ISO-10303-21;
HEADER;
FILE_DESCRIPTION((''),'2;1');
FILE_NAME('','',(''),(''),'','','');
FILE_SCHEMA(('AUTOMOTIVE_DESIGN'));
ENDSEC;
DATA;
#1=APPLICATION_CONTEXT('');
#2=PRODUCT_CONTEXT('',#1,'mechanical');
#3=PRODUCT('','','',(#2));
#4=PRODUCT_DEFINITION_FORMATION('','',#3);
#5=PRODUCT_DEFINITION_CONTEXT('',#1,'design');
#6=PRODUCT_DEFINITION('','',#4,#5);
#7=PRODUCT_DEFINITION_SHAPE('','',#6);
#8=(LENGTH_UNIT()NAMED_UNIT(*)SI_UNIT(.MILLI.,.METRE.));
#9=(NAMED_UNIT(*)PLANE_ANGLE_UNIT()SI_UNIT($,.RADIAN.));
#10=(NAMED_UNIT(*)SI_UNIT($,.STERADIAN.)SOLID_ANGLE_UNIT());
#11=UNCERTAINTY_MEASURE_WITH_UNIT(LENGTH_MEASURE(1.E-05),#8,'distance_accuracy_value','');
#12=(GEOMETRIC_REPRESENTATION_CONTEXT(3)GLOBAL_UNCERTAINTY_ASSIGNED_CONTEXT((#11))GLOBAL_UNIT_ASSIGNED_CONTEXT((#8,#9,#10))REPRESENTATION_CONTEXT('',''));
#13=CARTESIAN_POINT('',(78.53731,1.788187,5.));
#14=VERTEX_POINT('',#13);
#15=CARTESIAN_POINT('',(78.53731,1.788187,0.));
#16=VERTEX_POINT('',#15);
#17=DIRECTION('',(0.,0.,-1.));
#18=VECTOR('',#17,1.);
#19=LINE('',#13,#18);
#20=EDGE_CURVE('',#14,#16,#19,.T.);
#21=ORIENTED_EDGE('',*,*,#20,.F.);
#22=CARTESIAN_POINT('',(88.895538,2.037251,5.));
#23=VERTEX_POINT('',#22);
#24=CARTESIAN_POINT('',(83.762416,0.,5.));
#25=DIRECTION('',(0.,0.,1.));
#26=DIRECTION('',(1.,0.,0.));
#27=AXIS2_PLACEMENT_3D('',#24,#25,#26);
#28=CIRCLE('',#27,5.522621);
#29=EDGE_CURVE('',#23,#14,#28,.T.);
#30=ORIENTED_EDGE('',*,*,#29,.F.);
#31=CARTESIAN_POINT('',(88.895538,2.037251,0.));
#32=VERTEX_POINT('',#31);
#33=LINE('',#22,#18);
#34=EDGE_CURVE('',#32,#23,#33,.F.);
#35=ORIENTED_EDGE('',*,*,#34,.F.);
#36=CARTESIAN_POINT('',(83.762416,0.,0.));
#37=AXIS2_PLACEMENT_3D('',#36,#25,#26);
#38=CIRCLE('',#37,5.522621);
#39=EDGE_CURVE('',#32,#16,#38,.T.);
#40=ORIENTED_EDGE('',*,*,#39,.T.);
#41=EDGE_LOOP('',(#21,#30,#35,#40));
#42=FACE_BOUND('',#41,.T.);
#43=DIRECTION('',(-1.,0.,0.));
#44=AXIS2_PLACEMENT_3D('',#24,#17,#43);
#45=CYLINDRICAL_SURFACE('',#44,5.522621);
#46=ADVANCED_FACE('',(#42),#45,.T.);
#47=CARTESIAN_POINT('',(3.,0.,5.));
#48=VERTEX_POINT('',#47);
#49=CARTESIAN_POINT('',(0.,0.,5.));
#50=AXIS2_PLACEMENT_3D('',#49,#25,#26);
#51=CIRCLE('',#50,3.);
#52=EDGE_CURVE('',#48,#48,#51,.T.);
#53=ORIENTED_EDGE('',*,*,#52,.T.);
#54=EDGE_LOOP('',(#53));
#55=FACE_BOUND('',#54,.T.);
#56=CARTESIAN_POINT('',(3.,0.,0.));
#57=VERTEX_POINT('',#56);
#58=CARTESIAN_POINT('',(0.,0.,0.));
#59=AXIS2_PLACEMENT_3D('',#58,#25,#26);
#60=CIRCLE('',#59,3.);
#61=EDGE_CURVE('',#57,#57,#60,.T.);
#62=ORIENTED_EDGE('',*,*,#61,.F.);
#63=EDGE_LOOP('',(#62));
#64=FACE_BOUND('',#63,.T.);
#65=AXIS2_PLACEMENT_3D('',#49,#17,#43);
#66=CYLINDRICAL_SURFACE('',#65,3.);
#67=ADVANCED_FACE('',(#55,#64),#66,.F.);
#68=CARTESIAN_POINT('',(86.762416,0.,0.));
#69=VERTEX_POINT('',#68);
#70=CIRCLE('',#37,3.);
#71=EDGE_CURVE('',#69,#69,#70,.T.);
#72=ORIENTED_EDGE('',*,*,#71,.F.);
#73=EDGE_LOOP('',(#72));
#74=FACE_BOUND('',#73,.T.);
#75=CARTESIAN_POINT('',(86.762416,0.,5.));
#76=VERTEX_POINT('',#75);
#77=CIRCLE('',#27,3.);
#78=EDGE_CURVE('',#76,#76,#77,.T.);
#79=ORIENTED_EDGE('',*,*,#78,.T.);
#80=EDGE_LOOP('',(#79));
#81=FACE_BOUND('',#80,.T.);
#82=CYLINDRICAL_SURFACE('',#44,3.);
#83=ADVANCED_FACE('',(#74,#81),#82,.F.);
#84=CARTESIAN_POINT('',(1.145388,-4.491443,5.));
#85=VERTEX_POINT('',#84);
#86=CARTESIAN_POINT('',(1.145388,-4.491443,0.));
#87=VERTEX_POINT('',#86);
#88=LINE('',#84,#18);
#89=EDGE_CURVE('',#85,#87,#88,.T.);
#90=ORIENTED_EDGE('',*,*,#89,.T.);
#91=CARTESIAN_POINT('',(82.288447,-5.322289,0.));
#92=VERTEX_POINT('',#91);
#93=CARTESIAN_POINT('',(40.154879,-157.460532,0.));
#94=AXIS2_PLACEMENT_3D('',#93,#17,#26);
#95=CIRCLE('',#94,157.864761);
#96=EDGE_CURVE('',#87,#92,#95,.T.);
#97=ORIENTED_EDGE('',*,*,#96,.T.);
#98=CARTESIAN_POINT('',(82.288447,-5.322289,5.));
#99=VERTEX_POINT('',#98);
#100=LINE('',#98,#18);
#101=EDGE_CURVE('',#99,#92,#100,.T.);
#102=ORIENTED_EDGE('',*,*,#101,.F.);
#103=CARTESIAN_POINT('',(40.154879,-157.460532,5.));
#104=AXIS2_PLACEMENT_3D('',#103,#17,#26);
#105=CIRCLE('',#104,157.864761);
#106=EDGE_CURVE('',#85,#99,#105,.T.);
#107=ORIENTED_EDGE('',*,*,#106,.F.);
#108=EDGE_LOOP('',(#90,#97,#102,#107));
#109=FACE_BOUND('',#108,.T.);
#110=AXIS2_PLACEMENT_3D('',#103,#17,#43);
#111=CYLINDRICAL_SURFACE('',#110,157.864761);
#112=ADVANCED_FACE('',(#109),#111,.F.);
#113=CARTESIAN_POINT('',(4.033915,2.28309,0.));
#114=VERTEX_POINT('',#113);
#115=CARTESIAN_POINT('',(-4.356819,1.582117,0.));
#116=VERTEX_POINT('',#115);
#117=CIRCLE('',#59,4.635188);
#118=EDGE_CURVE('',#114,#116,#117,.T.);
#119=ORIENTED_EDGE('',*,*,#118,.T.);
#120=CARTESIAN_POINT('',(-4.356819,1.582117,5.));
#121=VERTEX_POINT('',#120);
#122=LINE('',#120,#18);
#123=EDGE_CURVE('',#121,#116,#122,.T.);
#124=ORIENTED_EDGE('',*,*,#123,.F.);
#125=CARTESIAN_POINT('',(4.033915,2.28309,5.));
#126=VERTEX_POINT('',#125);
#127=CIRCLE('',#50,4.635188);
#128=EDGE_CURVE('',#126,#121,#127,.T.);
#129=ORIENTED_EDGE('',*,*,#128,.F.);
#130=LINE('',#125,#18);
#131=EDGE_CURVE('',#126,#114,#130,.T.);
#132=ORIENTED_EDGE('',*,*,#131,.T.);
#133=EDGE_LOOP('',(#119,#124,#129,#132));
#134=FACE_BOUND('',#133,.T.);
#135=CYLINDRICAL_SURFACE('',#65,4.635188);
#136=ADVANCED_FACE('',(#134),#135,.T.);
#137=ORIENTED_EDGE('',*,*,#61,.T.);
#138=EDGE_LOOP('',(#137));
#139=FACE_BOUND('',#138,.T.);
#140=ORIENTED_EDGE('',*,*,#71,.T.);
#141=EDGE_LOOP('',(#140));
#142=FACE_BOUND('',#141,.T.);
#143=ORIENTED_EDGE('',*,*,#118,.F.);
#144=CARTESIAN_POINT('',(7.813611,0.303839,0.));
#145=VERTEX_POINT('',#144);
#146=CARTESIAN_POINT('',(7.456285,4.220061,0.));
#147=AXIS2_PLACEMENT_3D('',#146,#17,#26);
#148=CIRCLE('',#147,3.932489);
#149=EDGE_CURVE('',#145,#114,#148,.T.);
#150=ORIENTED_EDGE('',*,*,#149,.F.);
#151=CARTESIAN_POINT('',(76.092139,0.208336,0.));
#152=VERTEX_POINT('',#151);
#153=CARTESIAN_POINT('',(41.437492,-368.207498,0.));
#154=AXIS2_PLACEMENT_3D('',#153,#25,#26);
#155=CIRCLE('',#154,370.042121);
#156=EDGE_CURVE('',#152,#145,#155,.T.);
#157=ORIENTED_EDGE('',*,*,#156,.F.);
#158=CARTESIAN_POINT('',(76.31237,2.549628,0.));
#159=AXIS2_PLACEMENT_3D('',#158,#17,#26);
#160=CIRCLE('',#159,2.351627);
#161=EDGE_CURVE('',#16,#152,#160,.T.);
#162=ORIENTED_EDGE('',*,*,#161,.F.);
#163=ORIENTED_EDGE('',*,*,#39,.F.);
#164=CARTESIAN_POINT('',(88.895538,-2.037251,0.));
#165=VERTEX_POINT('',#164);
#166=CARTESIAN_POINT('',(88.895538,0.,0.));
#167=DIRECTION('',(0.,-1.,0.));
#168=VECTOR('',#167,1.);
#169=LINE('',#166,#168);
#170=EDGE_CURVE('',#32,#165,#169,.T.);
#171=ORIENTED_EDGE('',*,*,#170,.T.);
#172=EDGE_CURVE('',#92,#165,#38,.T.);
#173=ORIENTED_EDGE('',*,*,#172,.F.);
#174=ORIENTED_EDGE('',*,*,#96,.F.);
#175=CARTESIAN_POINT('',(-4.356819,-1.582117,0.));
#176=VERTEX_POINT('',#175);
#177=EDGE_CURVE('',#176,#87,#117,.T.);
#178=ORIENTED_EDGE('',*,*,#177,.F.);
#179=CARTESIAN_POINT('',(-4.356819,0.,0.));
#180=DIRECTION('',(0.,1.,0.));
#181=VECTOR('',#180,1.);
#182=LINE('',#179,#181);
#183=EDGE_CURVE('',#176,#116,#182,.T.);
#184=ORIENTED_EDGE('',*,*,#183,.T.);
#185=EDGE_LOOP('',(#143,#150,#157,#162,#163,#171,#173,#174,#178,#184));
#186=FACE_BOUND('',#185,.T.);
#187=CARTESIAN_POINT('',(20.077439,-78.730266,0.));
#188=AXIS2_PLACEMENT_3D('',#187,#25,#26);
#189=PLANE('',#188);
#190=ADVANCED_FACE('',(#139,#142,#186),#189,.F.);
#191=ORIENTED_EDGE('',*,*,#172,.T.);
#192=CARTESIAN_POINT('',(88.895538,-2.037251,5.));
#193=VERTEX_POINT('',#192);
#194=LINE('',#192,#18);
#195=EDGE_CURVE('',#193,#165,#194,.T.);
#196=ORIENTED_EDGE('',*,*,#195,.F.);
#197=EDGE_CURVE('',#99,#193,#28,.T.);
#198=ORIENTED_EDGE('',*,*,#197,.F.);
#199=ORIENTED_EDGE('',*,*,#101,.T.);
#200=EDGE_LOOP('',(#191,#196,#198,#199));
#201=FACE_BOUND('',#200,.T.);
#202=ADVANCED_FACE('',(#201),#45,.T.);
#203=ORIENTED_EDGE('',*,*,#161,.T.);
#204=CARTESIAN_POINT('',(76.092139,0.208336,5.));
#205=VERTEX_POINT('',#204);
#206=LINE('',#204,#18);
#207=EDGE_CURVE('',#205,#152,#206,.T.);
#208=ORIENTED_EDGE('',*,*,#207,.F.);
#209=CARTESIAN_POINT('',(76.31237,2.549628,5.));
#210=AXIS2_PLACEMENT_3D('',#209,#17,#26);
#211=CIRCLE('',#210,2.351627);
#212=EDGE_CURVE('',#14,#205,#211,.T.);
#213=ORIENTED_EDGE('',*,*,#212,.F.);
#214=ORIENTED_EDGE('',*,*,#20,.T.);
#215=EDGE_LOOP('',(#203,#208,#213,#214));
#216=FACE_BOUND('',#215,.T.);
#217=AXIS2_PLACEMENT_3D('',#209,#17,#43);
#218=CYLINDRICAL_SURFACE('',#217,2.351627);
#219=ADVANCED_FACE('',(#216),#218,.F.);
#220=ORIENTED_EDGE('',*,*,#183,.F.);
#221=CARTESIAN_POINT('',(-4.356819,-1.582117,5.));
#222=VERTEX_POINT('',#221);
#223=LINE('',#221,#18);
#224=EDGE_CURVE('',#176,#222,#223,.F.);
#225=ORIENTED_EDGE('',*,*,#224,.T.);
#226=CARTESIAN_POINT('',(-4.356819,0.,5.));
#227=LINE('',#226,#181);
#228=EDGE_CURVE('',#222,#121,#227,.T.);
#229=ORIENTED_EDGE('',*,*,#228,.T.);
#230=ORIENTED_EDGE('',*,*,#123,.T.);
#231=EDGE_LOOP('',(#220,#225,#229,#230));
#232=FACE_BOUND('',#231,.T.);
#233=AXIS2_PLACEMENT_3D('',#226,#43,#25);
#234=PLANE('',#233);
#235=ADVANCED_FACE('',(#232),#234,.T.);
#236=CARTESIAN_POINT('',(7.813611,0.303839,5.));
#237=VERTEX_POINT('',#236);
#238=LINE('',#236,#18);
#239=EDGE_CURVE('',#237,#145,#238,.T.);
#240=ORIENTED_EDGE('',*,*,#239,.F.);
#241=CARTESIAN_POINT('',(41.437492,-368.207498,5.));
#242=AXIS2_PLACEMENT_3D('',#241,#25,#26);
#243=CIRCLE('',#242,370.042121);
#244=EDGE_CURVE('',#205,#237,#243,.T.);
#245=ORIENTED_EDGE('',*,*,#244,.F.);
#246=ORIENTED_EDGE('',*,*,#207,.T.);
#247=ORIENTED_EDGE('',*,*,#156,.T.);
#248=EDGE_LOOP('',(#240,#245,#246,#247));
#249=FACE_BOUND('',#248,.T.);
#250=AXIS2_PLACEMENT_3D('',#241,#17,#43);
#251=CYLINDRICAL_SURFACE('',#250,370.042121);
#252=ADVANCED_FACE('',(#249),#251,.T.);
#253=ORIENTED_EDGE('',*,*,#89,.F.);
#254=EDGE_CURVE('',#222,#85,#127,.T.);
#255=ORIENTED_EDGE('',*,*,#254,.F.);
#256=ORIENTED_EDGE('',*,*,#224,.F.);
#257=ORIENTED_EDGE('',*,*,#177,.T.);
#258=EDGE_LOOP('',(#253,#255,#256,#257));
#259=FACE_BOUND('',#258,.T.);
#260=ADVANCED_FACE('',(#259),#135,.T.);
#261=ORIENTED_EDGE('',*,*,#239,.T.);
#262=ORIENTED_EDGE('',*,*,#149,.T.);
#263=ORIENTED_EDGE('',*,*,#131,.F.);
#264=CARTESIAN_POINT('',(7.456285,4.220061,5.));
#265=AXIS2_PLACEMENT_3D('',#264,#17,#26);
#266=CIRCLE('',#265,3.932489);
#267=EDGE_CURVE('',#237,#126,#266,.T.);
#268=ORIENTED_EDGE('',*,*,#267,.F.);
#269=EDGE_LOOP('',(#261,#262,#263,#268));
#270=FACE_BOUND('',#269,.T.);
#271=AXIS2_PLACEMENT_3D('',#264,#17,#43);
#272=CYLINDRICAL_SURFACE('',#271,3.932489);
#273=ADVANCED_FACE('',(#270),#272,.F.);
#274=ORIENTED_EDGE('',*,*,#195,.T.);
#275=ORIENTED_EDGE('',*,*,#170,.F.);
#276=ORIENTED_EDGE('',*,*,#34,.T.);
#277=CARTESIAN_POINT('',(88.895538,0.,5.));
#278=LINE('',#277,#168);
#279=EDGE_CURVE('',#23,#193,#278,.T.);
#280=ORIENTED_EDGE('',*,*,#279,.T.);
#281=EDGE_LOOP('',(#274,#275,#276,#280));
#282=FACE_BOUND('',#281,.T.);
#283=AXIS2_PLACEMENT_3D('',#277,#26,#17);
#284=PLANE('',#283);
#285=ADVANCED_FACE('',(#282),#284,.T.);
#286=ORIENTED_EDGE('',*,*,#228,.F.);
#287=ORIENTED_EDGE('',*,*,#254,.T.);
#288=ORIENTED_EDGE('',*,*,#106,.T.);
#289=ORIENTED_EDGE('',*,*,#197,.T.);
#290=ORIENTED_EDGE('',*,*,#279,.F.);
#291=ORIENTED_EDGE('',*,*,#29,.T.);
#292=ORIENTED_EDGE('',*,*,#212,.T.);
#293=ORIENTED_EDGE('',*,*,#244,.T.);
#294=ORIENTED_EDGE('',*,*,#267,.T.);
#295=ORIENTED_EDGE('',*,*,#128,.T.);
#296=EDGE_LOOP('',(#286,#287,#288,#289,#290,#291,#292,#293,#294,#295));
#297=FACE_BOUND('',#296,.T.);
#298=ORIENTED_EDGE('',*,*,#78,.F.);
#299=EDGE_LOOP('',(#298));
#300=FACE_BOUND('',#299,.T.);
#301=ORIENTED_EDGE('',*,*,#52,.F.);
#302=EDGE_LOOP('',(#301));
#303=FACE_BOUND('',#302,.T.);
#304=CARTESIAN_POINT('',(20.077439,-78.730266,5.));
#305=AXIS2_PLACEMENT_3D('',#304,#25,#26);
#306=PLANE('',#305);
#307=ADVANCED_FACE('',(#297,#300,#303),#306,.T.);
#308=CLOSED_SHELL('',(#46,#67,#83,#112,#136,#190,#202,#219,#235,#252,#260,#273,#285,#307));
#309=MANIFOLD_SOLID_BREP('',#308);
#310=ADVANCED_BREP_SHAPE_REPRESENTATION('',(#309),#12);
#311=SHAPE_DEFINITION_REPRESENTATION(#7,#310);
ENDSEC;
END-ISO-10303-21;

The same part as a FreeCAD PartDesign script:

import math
import FreeCAD as App
import Part
import Sketcher

doc = App.newDocument("Part")
body = doc.addObject("PartDesign::Body", "Body")

sketch1 = body.newObject("Sketcher::SketchObject", "Sketch")
sketch1.AttachmentSupport = (doc.getObject("XY_Plane"), [""])
sketch1.MapMode = "FlatFace"
sketch1.addGeometry([
    Part.ArcOfCircle(Part.Circle(App.Vector(83.762416, 0, 0), App.Vector(0, 0, 1), 5.522621), math.radians(-105.47968), math.radians(161.107522)),
    Part.ArcOfCircle(Part.Circle(App.Vector(76.31237, 2.549628, 0), App.Vector(0, 0, 1), 2.351627), math.radians(-95.373656), math.radians(-18.892478)),
    Part.ArcOfCircle(Part.Circle(App.Vector(41.437492, -368.207498, 0), App.Vector(0, 0, 1), 370.042121), math.radians(84.626344), math.radians(95.213372)),
    Part.ArcOfCircle(Part.Circle(App.Vector(7.456285, 4.220061, 0), App.Vector(0, 0, 1), 3.932489), math.radians(-150.491283), math.radians(-84.786628)),
    Part.ArcOfCircle(Part.Circle(App.Vector(0, 0, 0), App.Vector(0, 0, 1), 4.635188), math.radians(29.508717), math.radians(284.306386)),
    Part.ArcOfCircle(Part.Circle(App.Vector(40.154879, -157.460532, 0), App.Vector(0, 0, 1), 157.864761), math.radians(74.52032), math.radians(104.306386)),
    Part.Circle(App.Vector(0, 0, 0), App.Vector(0, 0, 1), 3),
    Part.Circle(App.Vector(83.762416, 0, 0), App.Vector(0, 0, 1), 3),
], False)
sketch1.addConstraint([
    Sketcher.Constraint("Tangent", 0, 2, 1, 2),
    Sketcher.Constraint("Tangent", 1, 1, 2, 1),
    Sketcher.Constraint("Tangent", 2, 2, 3, 2),
    Sketcher.Constraint("Tangent", 3, 1, 4, 1),
    Sketcher.Constraint("Tangent", 4, 2, 5, 2),
    Sketcher.Constraint("Tangent", 5, 1, 0, 1),
    Sketcher.Constraint("Coincident", 4, 3, -1, 1),
    Sketcher.Constraint("Coincident", 6, 3, -1, 1),
    Sketcher.Constraint("Coincident", 7, 3, 0, 3),
    Sketcher.Constraint("Equal", 6, 7),
    Sketcher.Constraint("PointOnObject", 0, 3, -1),
    Sketcher.Constraint("Diameter", 6, 6.0),
    Sketcher.Constraint("Radius", 0, 5.522621),
    Sketcher.Constraint("Radius", 2, 370.042121),
    Sketcher.Constraint("Radius", 3, 3.932489),
    Sketcher.Constraint("Radius", 4, 4.635188),
    Sketcher.Constraint("Radius", 5, 157.864761),
    Sketcher.Constraint("Radius", 1, 2.351627),
    Sketcher.Constraint("DistanceY", 2, 3, -1, 1, 368.207498),
    Sketcher.Constraint("DistanceX", -1, 1, 1, 3, 76.31237),
    Sketcher.Constraint("DistanceY", -1, 1, 1, 3, 2.549628),
])
pad1 = body.newObject("PartDesign::Pad", "Pad")
pad1.Profile = sketch1
pad1.Length = 5

sketch2 = body.newObject("Sketcher::SketchObject", "Sketch001")
sketch2.AttachmentSupport = (doc.getObject("XY_Plane"), [""])
sketch2.MapMode = "FlatFace"
sketch2.addGeometry([
    Part.LineSegment(App.Vector(88.895538, 4.134108, 0), App.Vector(88.895538, -3.371538, 0)),
    Part.LineSegment(App.Vector(88.895538, -3.371538, 0), App.Vector(194.447871, -3.371538, 0)),
    Part.LineSegment(App.Vector(194.447871, -3.371538, 0), App.Vector(194.447871, 4.134108, 0)),
    Part.LineSegment(App.Vector(194.447871, 4.134108, 0), App.Vector(88.895538, 4.134108, 0)),
    Part.LineSegment(App.Vector(-5.00865, 2.487096, 0), App.Vector(-5.00865, -2.564588, 0)),
    Part.LineSegment(App.Vector(-5.00865, -2.564588, 0), App.Vector(-4.356819, -2.564588, 0)),
    Part.LineSegment(App.Vector(-4.356819, -2.564588, 0), App.Vector(-4.356819, 2.487096, 0)),
    Part.LineSegment(App.Vector(-4.356819, 2.487096, 0), App.Vector(-5.00865, 2.487096, 0)),
], False)
sketch2.addConstraint([
    Sketcher.Constraint("Coincident", 0, 2, 1, 1),
    Sketcher.Constraint("Coincident", 1, 2, 2, 1),
    Sketcher.Constraint("Coincident", 2, 2, 3, 1),
    Sketcher.Constraint("Coincident", 3, 2, 0, 1),
    Sketcher.Constraint("Coincident", 4, 2, 5, 1),
    Sketcher.Constraint("Coincident", 5, 2, 6, 1),
    Sketcher.Constraint("Coincident", 6, 2, 7, 1),
    Sketcher.Constraint("Coincident", 7, 2, 4, 1),
    Sketcher.Constraint("Vertical", 0),
    Sketcher.Constraint("Horizontal", 1),
    Sketcher.Constraint("Vertical", 2),
    Sketcher.Constraint("Horizontal", 3),
    Sketcher.Constraint("Vertical", 4),
    Sketcher.Constraint("Horizontal", 5),
    Sketcher.Constraint("Vertical", 6),
    Sketcher.Constraint("Horizontal", 7),
    Sketcher.Constraint("DistanceX", 5, 1, 5, 2, 0.65183),
    Sketcher.Constraint("DistanceX", 1, 1, 1, 2, 105.552332),
    Sketcher.Constraint("DistanceY", 0, 2, 0, 1, 7.505646),
    Sketcher.Constraint("DistanceY", 4, 2, 4, 1, 5.051684),
    Sketcher.Constraint("DistanceX", -1, 1, 0, 2, 88.895538),
    Sketcher.Constraint("DistanceX", 4, 2, -1, 1, 5.00865),
    Sketcher.Constraint("DistanceY", 4, 2, -1, 1, 2.564588),
    Sketcher.Constraint("DistanceY", 0, 2, 4, 2, 0.80695),
])
pocket1 = body.newObject("PartDesign::Pocket", "Pocket")
pocket1.Profile = sketch2
pocket1.Type = "ThroughAll"
pocket1.Reversed = True

doc.recompute()
